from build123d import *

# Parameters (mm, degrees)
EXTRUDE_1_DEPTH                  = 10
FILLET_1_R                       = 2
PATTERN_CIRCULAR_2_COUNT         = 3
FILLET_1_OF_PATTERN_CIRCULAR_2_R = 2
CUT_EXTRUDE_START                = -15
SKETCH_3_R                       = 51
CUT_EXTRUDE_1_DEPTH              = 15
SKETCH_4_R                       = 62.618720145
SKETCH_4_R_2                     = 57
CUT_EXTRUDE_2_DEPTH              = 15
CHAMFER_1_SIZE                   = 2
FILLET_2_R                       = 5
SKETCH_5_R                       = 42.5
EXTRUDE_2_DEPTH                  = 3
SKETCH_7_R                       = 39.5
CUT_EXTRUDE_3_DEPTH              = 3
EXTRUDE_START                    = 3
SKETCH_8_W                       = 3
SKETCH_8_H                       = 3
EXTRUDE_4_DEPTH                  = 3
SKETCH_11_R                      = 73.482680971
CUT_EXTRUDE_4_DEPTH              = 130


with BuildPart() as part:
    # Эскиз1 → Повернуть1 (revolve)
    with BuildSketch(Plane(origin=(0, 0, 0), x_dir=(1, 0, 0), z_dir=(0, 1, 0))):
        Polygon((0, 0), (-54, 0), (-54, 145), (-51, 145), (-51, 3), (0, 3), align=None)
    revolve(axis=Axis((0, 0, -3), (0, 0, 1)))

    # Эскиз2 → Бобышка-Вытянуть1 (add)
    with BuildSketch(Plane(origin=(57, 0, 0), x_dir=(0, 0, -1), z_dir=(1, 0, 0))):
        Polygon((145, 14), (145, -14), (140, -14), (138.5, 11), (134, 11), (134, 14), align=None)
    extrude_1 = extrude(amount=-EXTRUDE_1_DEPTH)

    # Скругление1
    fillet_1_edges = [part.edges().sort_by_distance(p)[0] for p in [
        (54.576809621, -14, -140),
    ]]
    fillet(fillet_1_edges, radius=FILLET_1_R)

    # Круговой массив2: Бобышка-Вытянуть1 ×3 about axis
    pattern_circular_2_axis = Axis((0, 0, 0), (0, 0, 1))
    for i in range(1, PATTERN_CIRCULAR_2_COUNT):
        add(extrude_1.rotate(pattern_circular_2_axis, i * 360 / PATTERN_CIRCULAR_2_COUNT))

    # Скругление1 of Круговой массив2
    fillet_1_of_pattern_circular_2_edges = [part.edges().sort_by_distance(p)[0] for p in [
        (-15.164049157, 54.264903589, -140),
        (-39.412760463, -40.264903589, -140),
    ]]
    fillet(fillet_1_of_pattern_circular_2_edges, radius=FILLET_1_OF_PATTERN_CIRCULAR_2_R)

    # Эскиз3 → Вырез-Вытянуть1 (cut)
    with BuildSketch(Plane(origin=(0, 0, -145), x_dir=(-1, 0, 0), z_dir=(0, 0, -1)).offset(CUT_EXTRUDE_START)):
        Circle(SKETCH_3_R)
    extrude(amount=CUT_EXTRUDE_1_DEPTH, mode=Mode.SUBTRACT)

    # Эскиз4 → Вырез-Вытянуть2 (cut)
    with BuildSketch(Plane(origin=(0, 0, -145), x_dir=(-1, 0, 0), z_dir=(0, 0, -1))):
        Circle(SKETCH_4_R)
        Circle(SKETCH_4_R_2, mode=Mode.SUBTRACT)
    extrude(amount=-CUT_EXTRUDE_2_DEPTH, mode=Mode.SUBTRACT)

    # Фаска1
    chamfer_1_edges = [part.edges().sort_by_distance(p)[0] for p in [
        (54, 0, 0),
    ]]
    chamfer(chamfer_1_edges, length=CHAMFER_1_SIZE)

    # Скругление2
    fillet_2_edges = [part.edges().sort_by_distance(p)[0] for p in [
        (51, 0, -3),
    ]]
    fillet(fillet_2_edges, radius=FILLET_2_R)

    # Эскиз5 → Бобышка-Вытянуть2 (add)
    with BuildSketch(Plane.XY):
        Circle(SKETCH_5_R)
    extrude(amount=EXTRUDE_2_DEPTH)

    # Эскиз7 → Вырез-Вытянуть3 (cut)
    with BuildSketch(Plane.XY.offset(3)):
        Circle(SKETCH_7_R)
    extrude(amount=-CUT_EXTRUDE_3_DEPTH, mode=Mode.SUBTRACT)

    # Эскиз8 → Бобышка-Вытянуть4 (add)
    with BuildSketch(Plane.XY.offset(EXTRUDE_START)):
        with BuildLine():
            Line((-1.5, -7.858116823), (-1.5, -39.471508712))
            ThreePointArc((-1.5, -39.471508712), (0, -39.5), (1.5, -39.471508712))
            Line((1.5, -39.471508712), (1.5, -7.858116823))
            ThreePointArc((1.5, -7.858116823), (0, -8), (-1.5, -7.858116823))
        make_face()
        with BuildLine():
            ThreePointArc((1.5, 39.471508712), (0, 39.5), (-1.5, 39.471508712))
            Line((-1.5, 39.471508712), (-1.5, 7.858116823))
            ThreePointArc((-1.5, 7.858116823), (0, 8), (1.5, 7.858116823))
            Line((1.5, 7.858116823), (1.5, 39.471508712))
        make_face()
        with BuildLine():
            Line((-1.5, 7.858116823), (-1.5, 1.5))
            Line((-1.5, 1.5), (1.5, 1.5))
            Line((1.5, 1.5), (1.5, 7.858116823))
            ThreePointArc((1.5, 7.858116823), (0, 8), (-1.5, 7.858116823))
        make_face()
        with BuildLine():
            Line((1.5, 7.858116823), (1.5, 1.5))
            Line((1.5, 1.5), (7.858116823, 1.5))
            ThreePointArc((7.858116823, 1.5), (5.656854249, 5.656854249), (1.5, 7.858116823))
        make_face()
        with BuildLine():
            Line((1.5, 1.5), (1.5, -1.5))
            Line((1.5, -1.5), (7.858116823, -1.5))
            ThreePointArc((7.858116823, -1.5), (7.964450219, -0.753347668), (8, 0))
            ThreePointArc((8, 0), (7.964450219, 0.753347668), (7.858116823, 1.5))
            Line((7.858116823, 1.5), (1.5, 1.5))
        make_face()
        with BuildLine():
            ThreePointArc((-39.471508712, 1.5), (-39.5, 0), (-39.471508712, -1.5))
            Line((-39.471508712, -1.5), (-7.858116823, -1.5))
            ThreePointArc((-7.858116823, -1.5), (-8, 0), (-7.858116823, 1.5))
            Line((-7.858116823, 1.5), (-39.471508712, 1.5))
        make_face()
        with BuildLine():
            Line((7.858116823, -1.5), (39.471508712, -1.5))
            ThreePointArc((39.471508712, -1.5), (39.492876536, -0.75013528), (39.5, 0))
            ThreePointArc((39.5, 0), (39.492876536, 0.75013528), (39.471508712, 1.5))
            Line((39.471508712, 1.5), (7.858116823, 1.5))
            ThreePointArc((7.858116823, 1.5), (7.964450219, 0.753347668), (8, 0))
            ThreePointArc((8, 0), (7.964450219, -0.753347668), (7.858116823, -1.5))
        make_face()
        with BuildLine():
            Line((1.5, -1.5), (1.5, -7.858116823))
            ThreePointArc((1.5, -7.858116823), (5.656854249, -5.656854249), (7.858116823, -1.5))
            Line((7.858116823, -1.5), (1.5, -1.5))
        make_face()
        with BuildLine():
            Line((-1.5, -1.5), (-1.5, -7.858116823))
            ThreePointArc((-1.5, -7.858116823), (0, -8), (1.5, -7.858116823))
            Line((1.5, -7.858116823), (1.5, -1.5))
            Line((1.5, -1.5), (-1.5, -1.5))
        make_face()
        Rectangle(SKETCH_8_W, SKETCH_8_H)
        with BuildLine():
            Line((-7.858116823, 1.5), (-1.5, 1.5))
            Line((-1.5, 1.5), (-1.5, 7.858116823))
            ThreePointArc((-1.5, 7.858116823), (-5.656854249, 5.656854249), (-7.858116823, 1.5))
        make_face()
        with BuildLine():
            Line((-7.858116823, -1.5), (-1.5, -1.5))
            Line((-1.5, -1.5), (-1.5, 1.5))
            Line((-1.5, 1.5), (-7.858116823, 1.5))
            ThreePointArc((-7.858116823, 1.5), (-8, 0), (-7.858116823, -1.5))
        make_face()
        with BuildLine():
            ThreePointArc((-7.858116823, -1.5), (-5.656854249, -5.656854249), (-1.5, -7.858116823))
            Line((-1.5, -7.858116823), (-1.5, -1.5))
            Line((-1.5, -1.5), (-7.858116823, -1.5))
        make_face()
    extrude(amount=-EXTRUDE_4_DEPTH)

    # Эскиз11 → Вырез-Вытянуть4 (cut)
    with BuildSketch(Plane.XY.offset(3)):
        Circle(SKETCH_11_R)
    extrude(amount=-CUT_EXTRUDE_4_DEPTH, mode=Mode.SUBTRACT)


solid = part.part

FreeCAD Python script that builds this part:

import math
import FreeCAD as App
import Part
import Sketcher


def edges_at(feature, points):
    """Names of the edges that pass closest to the given points."""
    edges = feature.Shape.Edges
    near = lambda p: min(range(len(edges)), key=lambda i: edges[i].distToShape(Part.Vertex(*p))[0])
    return sorted({f"Edge{near(p) + 1}" for p in points})

doc = App.newDocument("Part")
body = doc.addObject("PartDesign::Body", "Body")

# Sketch on XZ plane
sketch1 = body.newObject("Sketcher::SketchObject", "Sketch")
sketch1.AttachmentSupport = (doc.getObject("XZ_Plane"), [""])
sketch1.MapMode = "FlatFace"
sketch1.addGeometry([
    Part.LineSegment(App.Vector(-54, 0, 0), App.Vector(0, 0, 0)),  # 0
    Part.LineSegment(App.Vector(0, 0, 0), App.Vector(0, -3, 0)),  # 1
    Part.LineSegment(App.Vector(0, -3, 0), App.Vector(-51, -3, 0)),  # 2
    Part.LineSegment(App.Vector(-51, -3, 0), App.Vector(-51, -145, 0)),  # 3
    Part.LineSegment(App.Vector(-51, -145, 0), App.Vector(-54, -145, 0)),  # 4
    Part.LineSegment(App.Vector(-54, -145, 0), App.Vector(-54, 0, 0)),  # 5
], False)
sketch1.addConstraint([
    Sketcher.Constraint("Coincident", 0, 2, 1, 1),
    Sketcher.Constraint("Coincident", 1, 2, 2, 1),
    Sketcher.Constraint("Coincident", 2, 2, 3, 1),
    Sketcher.Constraint("Coincident", 3, 2, 4, 1),
    Sketcher.Constraint("Coincident", 4, 2, 5, 1),
    Sketcher.Constraint("Coincident", 5, 2, 0, 1),
    Sketcher.Constraint("Horizontal", 0),
    Sketcher.Constraint("Vertical", 1),
    Sketcher.Constraint("Horizontal", 2),
    Sketcher.Constraint("Vertical", 3),
    Sketcher.Constraint("Horizontal", 4),
    Sketcher.Constraint("Vertical", 5),
    Sketcher.Constraint("Coincident", 0, 2, -1, 1),
    Sketcher.Constraint("Equal", 4, 1),
    Sketcher.Constraint("DistanceX", 0, 1, 0, 2, 54.0),
    Sketcher.Constraint("DistanceX", 2, 2, 2, 1, 51.0),
    Sketcher.Constraint("DistanceY", 3, 2, 3, 1, 142.0),
])
revolution = body.newObject("PartDesign::Revolution", "Revolution")
revolution.Profile = sketch1
revolution.ReferenceAxis = (sketch1, ["V_Axis"])
revolution.Angle = 360

# Sketch on YZ plane
sketch2 = body.newObject("Sketcher::SketchObject", "Sketch001")
sketch2.AttachmentSupport = (doc.getObject("YZ_Plane"), [""])
sketch2.MapMode = "FlatFace"
sketch2.AttachmentOffset = App.Placement(App.Vector(0, 0, 57), App.Rotation())
sketch2.addGeometry([
    Part.LineSegment(App.Vector(-14, -145, 0), App.Vector(14, -145, 0)),  # 0
    Part.LineSegment(App.Vector(14, -145, 0), App.Vector(14, -134, 0)),  # 1
    Part.LineSegment(App.Vector(14, -134, 0), App.Vector(11, -134, 0)),  # 2
    Part.LineSegment(App.Vector(11, -134, 0), App.Vector(11, -138.5, 0)),  # 3
    Part.LineSegment(App.Vector(11, -138.5, 0), App.Vector(-14, -140, 0)),  # 4
    Part.LineSegment(App.Vector(-14, -140, 0), App.Vector(-14, -145, 0)),  # 5
], False)
sketch2.addConstraint([
    Sketcher.Constraint("Coincident", 0, 2, 1, 1),
    Sketcher.Constraint("Coincident", 1, 2, 2, 1),
    Sketcher.Constraint("Coincident", 2, 2, 3, 1),
    Sketcher.Constraint("Coincident", 3, 2, 4, 1),
    Sketcher.Constraint("Coincident", 4, 2, 5, 1),
    Sketcher.Constraint("Coincident", 5, 2, 0, 1),
    Sketcher.Constraint("Horizontal", 0),
    Sketcher.Constraint("Vertical", 1),
    Sketcher.Constraint("Horizontal", 2),
    Sketcher.Constraint("Vertical", 3),
    Sketcher.Constraint("Vertical", 5),
    Sketcher.Constraint("DistanceX", 0, 1, 0, 2, 28.0),
    Sketcher.Constraint("DistanceX", 2, 2, 2, 1, 3.0),
    Sketcher.Constraint("DistanceY", 1, 1, 1, 2, 11.0),
    Sketcher.Constraint("DistanceY", 5, 2, 5, 1, 5.0),
    Sketcher.Constraint("DistanceY", 3, 2, 3, 1, 4.5),
    Sketcher.Constraint("DistanceX", -1, 1, 0, 2, 14.0),
    Sketcher.Constraint("DistanceY", 0, 2, -1, 1, 145.0),
])
pad1 = body.newObject("PartDesign::Pad", "Pad")
pad1.Profile = sketch2
pad1.Length = 10
pad1.Reversed = True
doc.recompute()

fillet = body.newObject("PartDesign::Fillet", "Fillet")
fillet.Base = (pad1, edges_at(pad1, [(54.577, -14, -140)]))
fillet.Radius = 2
doc.recompute()

polarpattern = body.newObject("PartDesign::PolarPattern", "PolarPattern")
polarpattern.Originals = [pad1]
polarpattern.Axis = (doc.getObject("Z_Axis"), [""])
polarpattern.Angle = 360
polarpattern.Occurrences = 3
body.Tip = polarpattern
doc.recompute()

fillet2 = body.newObject("PartDesign::Fillet", "Fillet001")
fillet2.Base = (polarpattern, edges_at(polarpattern, [(-15.164, 54.265, -140), (-39.413, -40.265, -140)]))
fillet2.Radius = 2

# Sketch on XY plane
sketch3 = body.newObject("Sketcher::SketchObject", "Sketch002")
sketch3.AttachmentSupport = (doc.getObject("XY_Plane"), [""])
sketch3.MapMode = "FlatFace"
sketch3.AttachmentOffset = App.Placement(App.Vector(0, 0, -130), App.Rotation())
sketch3.addGeometry(Part.Circle(App.Vector(0, 0, 0), App.Vector(0, 0, 1), 51), False)
sketch3.addConstraint([
    Sketcher.Constraint("Coincident", 0, 3, -1, 1),
    Sketcher.Constraint("Diameter", 0, 102.0),
])
pocket1 = body.newObject("PartDesign::Pocket", "Pocket")
pocket1.Profile = sketch3
pocket1.Length = 15

# Sketch on XY plane
sketch4 = body.newObject("Sketcher::SketchObject", "Sketch003")
sketch4.AttachmentSupport = (doc.getObject("XY_Plane"), [""])
sketch4.MapMode = "FlatFace"
sketch4.AttachmentOffset = App.Placement(App.Vector(0, 0, -145), App.Rotation())
sketch4.addGeometry([
    Part.Circle(App.Vector(0, 0, 0), App.Vector(0, 0, 1), 63),
    Part.Circle(App.Vector(0, 0, 0), App.Vector(0, 0, 1), 57),
], False)
sketch4.addConstraint([
    Sketcher.Constraint("Coincident", 0, 3, -1, 1),
    Sketcher.Constraint("Coincident", 1, 3, -1, 1),
    Sketcher.Constraint("Diameter", 1, 114.0),
    Sketcher.Constraint("Diameter", 0, 125.23744),
])
pocket2 = body.newObject("PartDesign::Pocket", "Pocket001")
pocket2.Profile = sketch4
pocket2.Length = 15
pocket2.Reversed = True
doc.recompute()

chamfer = body.newObject("PartDesign::Chamfer", "Chamfer")
chamfer.Base = (pocket2, edges_at(pocket2, [(54, 0, 0)]))
chamfer.Size = 2
doc.recompute()

fillet3 = body.newObject("PartDesign::Fillet", "Fillet002")
fillet3.Base = (chamfer, edges_at(chamfer, [(51, 0, -3)]))
fillet3.Radius = 5

# Sketch on XY plane
sketch5 = body.newObject("Sketcher::SketchObject", "Sketch004")
sketch5.AttachmentSupport = (doc.getObject("XY_Plane"), [""])
sketch5.MapMode = "FlatFace"
sketch5.addGeometry(Part.Circle(App.Vector(0, 0, 0), App.Vector(0, 0, 1), 42), False)
sketch5.addConstraint([
    Sketcher.Constraint("Coincident", 0, 3, -1, 1),
    Sketcher.Constraint("Diameter", 0, 85.0),
])
pad2 = body.newObject("PartDesign::Pad", "Pad001")
pad2.Profile = sketch5
pad2.Length = 3

# Sketch on XY plane
sketch6 = body.newObject("Sketcher::SketchObject", "Sketch005")
sketch6.AttachmentSupport = (doc.getObject("XY_Plane"), [""])
sketch6.MapMode = "FlatFace"
sketch6.AttachmentOffset = App.Placement(App.Vector(0, 0, 3), App.Rotation())
sketch6.addGeometry(Part.Circle(App.Vector(0, 0, 0), App.Vector(0, 0, 1), 40), False)
sketch6.addConstraint([
    Sketcher.Constraint("Coincident", 0, 3, -1, 1),
    Sketcher.Constraint("Diameter", 0, 79.0),
])
pocket3 = body.newObject("PartDesign::Pocket", "Pocket002")
pocket3.Profile = sketch6
pocket3.Length = 3

# Sketch on XY plane
sketch7 = body.newObject("Sketcher::SketchObject", "Sketch006")
sketch7.AttachmentSupport = (doc.getObject("XY_Plane"), [""])
sketch7.MapMode = "FlatFace"
sketch7.AttachmentOffset = App.Placement(App.Vector(0, 0, 3), App.Rotation())
sketch7.addGeometry([
    Part.LineSegment(App.Vector(-7.9, 1.5, 0), App.Vector(-39.5, 1.5, 0)),  # 0
    Part.ArcOfCircle(Part.Circle(App.Vector(0, 0, 0), App.Vector(0, 0, 1), 39.5), math.radians(177.82), math.radians(182.18)),  # 1
    Part.LineSegment(App.Vector(-39.5, -1.5, 0), App.Vector(-7.9, -1.5, 0)),  # 2
    Part.ArcOfCircle(Part.Circle(App.Vector(0, 0, 0), App.Vector(0, 0, 1), 8), math.radians(-169), math.radians(-101)),  # 3
    Part.LineSegment(App.Vector(-1.5, -7.9, 0), App.Vector(-1.5, -39.5, 0)),  # 4
    Part.ArcOfCircle(Part.Circle(App.Vector(0, 0, 0), App.Vector(0, 0, 1), 39.5), math.radians(-92.18), math.radians(-87.82)),  # 5
    Part.LineSegment(App.Vector(1.5, -39.5, 0), App.Vector(1.5, -7.9, 0)),  # 6
    Part.ArcOfCircle(Part.Circle(App.Vector(0, 0, 0), App.Vector(0, 0, 1), 8), math.radians(-79), math.radians(-11)),  # 7
    Part.LineSegment(App.Vector(7.9, -1.5, 0), App.Vector(39.5, -1.5, 0)),  # 8
    Part.ArcOfCircle(Part.Circle(App.Vector(0, 0, 0), App.Vector(0, 0, 1), 39.5), math.radians(-2.18), math.radians(0)),  # 9
    Part.ArcOfCircle(Part.Circle(App.Vector(0, 0, 0), App.Vector(0, 0, 1), 39.5), math.radians(0), math.radians(2.18)),  # 10
    Part.LineSegment(App.Vector(39.5, 1.5, 0), App.Vector(7.9, 1.5, 0)),  # 11
    Part.ArcOfCircle(Part.Circle(App.Vector(0, 0, 0), App.Vector(0, 0, 1), 8), math.radians(11), math.radians(79)),  # 12
    Part.LineSegment(App.Vector(1.5, 7.9, 0), App.Vector(1.5, 39.5, 0)),  # 13
    Part.ArcOfCircle(Part.Circle(App.Vector(0, 0, 0), App.Vector(0, 0, 1), 39.5), math.radians(87.82), math.radians(92.18)),  # 14
    Part.LineSegment(App.Vector(-1.5, 39.5, 0), App.Vector(-1.5, 7.9, 0)),  # 15
    Part.ArcOfCircle(Part.Circle(App.Vector(0, 0, 0), App.Vector(0, 0, 1), 8), math.radians(101), math.radians(169)),  # 16
], False)
sketch7.addConstraint([
    Sketcher.Constraint("Coincident", 0, 2, 1, 1),
    Sketcher.Constraint("Coincident", 1, 2, 2, 1),
    Sketcher.Constraint("Coincident", 2, 2, 3, 1),
    Sketcher.Constraint("Coincident", 3, 2, 4, 1),
    Sketcher.Constraint("Coincident", 4, 2, 5, 1),
    Sketcher.Constraint("Coincident", 5, 2, 6, 1),
    Sketcher.Constraint("Coincident", 6, 2, 7, 1),
    Sketcher.Constraint("Coincident", 7, 2, 8, 1),
    Sketcher.Constraint("Coincident", 8, 2, 9, 1),
    Sketcher.Constraint("Tangent", 9, 2, 10, 1),
    Sketcher.Constraint("Coincident", 10, 2, 11, 1),
    Sketcher.Constraint("Coincident", 11, 2, 12, 1),
    Sketcher.Constraint("Coincident", 12, 2, 13, 1),
    Sketcher.Constraint("Coincident", 13, 2, 14, 1),
    Sketcher.Constraint("Coincident", 14, 2, 15, 1),
    Sketcher.Constraint("Coincident", 15, 2, 16, 1),
    Sketcher.Constraint("Coincident", 16, 2, 0, 1),
    Sketcher.Constraint("Horizontal", 0),
    Sketcher.Constraint("Horizontal", 2),
    Sketcher.Constraint("Vertical", 4),
    Sketcher.Constraint("Vertical", 6),
    Sketcher.Constraint("Horizontal", 8),
    Sketcher.Constraint("Horizontal", 11),
    Sketcher.Constraint("Vertical", 13),
    Sketcher.Constraint("Vertical", 15),
    Sketcher.Constraint("Coincident", 1, 3, -1, 1),
    Sketcher.Constraint("Coincident", 3, 3, -1, 1),
    Sketcher.Constraint("Coincident", 5, 3, -1, 1),
    Sketcher.Constraint("Coincident", 7, 3, -1, 1),
    Sketcher.Constraint("Coincident", 9, 3, -1, 1),
    Sketcher.Constraint("Coincident", 12, 3, -1, 1),
    Sketcher.Constraint("Coincident", 14, 3, -1, 1),
    Sketcher.Constraint("Coincident", 16, 3, -1, 1),
    Sketcher.Constraint("Equal", 1, 5),
    Sketcher.Constraint("Equal", 3, 7),
    Sketcher.Constraint("Equal", 5, 9),
    Sketcher.Constraint("Equal", 9, 10),
    Sketcher.Constraint("Equal", 7, 12),
    Sketcher.Constraint("Equal", 10, 14),
    Sketcher.Constraint("Equal", 12, 16),
    Sketcher.Constraint("PointOnObject", 9, 2, -1),
    Sketcher.Constraint("Horizontal", 4, 2, 5, 2),
    Sketcher.Constraint("Horizontal", 2, 2, 7, 2),
    Sketcher.Constraint("Horizontal", 0, 2, 10, 2),
    Sketcher.Constraint("Horizontal", 13, 2, 14, 2),
    Sketcher.Constraint("Vertical", 0, 2, 1, 2),
    Sketcher.Constraint("Vertical", 6, 2, 12, 2),
    Sketcher.Constraint("Equal", 11, 4),
    Sketcher.Constraint("Radius", 3, 8.0),
    Sketcher.Constraint("Radius", 1, 39.5),
    Sketcher.Constraint("DistanceY", 1, 2, 0, 2, 3.0),
])
pad3 = body.newObject("PartDesign::Pad", "Pad002")
pad3.Profile = sketch7
pad3.Length = 3
pad3.Reversed = True

# Sketch on XY plane
sketch8 = body.newObject("Sketcher::SketchObject", "Sketch007")
sketch8.AttachmentSupport = (doc.getObject("XY_Plane"), [""])
sketch8.MapMode = "FlatFace"
sketch8.AttachmentOffset = App.Placement(App.Vector(0, 0, 3), App.Rotation())
sketch8.addGeometry(Part.Circle(App.Vector(0, 0, 0), App.Vector(0, 0, 1), 73), False)
sketch8.addConstraint([
    Sketcher.Constraint("Coincident", 0, 3, -1, 1),
    Sketcher.Constraint("Diameter", 0, 146.965362),
])
pocket4 = body.newObject("PartDesign::Pocket", "Pocket003")
pocket4.Profile = sketch8
pocket4.Length = 130

doc.recompute()
